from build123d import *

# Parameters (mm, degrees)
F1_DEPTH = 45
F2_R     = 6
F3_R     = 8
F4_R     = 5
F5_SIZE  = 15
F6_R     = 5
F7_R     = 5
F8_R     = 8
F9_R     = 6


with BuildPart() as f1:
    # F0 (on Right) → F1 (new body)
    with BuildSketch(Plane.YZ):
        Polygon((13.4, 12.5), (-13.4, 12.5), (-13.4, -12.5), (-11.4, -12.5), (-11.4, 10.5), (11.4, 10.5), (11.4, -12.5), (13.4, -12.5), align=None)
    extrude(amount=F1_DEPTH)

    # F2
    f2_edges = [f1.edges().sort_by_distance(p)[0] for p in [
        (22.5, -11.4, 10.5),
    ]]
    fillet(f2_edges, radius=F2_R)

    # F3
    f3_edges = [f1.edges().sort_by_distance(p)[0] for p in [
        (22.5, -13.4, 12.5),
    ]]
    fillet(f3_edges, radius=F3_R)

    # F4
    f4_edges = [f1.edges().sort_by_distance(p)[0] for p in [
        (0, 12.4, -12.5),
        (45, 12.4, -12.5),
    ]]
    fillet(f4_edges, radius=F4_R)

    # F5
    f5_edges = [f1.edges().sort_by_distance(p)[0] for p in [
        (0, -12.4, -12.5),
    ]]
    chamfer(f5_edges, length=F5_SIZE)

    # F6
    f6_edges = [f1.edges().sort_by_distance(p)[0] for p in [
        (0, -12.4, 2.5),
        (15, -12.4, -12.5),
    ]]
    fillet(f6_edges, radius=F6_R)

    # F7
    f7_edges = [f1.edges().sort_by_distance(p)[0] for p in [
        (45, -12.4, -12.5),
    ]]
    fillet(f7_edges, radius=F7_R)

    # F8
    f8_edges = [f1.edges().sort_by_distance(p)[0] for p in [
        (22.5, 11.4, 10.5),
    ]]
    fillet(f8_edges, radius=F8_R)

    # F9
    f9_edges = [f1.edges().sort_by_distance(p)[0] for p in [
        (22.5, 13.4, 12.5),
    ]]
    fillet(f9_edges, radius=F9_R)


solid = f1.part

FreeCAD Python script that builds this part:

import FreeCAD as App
import Part
import Sketcher


def edges_at(feature, points):
    """Names of the edges that pass closest to the given points."""
    edges = feature.Shape.Edges
    near = lambda p: min(range(len(edges)), key=lambda i: edges[i].distToShape(Part.Vertex(*p))[0])
    return sorted({f"Edge{near(p) + 1}" for p in points})


def add_polygon(sketch, points):
    """Adds a closed chain of lines whose ends are joined by coincident constraints."""
    first, n = sketch.GeometryCount, len(points)
    for a, b in zip(points, points[1:] + points[:1]):
        sketch.addGeometry(Part.LineSegment(App.Vector(*a, 0), App.Vector(*b, 0)), False)
    for i in range(n):
        sketch.addConstraint(Sketcher.Constraint("Coincident", first + i, 2, first + (i + 1) % n, 1))

doc = App.newDocument("Part")
body = doc.addObject("PartDesign::Body", "Body")

sketch1 = body.newObject("Sketcher::SketchObject", "Sketch")
sketch1.AttachmentSupport = (doc.getObject("YZ_Plane"), [""])
sketch1.MapMode = "FlatFace"
add_polygon(sketch1, [(13.4, 12.5), (-13.4, 12.5), (-13.4, -12.5), (-11.4, -12.5), (-11.4, 10.5), (11.4, 10.5), (11.4, -12.5), (13.4, -12.5)])
sketch1.addConstraint([
    Sketcher.Constraint("Horizontal", 0),
    Sketcher.Constraint("Vertical", 1),
    Sketcher.Constraint("Horizontal", 2),
    Sketcher.Constraint("Vertical", 3),
    Sketcher.Constraint("Horizontal", 4),
    Sketcher.Constraint("Vertical", 5),
    Sketcher.Constraint("Horizontal", 6),
    Sketcher.Constraint("Vertical", 7),
    Sketcher.Constraint("Symmetric", 0, 2, 6, 2, -1, 1),
    Sketcher.Constraint("Symmetric", 2, 2, 5, 2, -2),
    Sketcher.Constraint("DistanceX", 2, 1, 2, 2, 2.0),
    Sketcher.Constraint("DistanceY", 1, 2, 1, 1, 25.0),
    Sketcher.Constraint("DistanceY", 3, 1, 3, 2, 23.0),
    Sketcher.Constraint("DistanceX", 0, 2, 0, 1, 26.8),
])
pad1 = body.newObject("PartDesign::Pad", "Pad")
pad1.Profile = sketch1
pad1.Length = 45
doc.recompute()

fillet = body.newObject("PartDesign::Fillet", "Fillet")
fillet.Base = (pad1, edges_at(pad1, [(22.5, -11.4, 10.5)]))
fillet.Radius = 6
doc.recompute()

fillet2 = body.newObject("PartDesign::Fillet", "Fillet001")
fillet2.Base = (fillet, edges_at(fillet, [(22.5, -13.4, 12.5)]))
fillet2.Radius = 8
doc.recompute()

fillet3 = body.newObject("PartDesign::Fillet", "Fillet002")
fillet3.Base = (fillet2, edges_at(fillet2, [(0, 12.4, -12.5), (45, 12.4, -12.5)]))
fillet3.Radius = 5
doc.recompute()

chamfer = body.newObject("PartDesign::Chamfer", "Chamfer")
chamfer.Base = (fillet3, edges_at(fillet3, [(0, -12.4, -12.5)]))
chamfer.Size = 15
doc.recompute()

fillet4 = body.newObject("PartDesign::Fillet", "Fillet003")
fillet4.Base = (chamfer, edges_at(chamfer, [(0, -12.4, 2.5), (15, -12.4, -12.5)]))
fillet4.Radius = 5
doc.recompute()

fillet5 = body.newObject("PartDesign::Fillet", "Fillet004")
fillet5.Base = (fillet4, edges_at(fillet4, [(45, -12.4, -12.5)]))
fillet5.Radius = 5
doc.recompute()

fillet6 = body.newObject("PartDesign::Fillet", "Fillet005")
fillet6.Base = (fillet5, edges_at(fillet5, [(22.5, 11.4, 10.5)]))
fillet6.Radius = 8
doc.recompute()

fillet7 = body.newObject("PartDesign::Fillet", "Fillet006")
fillet7.Base = (fillet6, edges_at(fillet6, [(22.5, 13.4, 12.5)]))
fillet7.Radius = 6

doc.recompute()
